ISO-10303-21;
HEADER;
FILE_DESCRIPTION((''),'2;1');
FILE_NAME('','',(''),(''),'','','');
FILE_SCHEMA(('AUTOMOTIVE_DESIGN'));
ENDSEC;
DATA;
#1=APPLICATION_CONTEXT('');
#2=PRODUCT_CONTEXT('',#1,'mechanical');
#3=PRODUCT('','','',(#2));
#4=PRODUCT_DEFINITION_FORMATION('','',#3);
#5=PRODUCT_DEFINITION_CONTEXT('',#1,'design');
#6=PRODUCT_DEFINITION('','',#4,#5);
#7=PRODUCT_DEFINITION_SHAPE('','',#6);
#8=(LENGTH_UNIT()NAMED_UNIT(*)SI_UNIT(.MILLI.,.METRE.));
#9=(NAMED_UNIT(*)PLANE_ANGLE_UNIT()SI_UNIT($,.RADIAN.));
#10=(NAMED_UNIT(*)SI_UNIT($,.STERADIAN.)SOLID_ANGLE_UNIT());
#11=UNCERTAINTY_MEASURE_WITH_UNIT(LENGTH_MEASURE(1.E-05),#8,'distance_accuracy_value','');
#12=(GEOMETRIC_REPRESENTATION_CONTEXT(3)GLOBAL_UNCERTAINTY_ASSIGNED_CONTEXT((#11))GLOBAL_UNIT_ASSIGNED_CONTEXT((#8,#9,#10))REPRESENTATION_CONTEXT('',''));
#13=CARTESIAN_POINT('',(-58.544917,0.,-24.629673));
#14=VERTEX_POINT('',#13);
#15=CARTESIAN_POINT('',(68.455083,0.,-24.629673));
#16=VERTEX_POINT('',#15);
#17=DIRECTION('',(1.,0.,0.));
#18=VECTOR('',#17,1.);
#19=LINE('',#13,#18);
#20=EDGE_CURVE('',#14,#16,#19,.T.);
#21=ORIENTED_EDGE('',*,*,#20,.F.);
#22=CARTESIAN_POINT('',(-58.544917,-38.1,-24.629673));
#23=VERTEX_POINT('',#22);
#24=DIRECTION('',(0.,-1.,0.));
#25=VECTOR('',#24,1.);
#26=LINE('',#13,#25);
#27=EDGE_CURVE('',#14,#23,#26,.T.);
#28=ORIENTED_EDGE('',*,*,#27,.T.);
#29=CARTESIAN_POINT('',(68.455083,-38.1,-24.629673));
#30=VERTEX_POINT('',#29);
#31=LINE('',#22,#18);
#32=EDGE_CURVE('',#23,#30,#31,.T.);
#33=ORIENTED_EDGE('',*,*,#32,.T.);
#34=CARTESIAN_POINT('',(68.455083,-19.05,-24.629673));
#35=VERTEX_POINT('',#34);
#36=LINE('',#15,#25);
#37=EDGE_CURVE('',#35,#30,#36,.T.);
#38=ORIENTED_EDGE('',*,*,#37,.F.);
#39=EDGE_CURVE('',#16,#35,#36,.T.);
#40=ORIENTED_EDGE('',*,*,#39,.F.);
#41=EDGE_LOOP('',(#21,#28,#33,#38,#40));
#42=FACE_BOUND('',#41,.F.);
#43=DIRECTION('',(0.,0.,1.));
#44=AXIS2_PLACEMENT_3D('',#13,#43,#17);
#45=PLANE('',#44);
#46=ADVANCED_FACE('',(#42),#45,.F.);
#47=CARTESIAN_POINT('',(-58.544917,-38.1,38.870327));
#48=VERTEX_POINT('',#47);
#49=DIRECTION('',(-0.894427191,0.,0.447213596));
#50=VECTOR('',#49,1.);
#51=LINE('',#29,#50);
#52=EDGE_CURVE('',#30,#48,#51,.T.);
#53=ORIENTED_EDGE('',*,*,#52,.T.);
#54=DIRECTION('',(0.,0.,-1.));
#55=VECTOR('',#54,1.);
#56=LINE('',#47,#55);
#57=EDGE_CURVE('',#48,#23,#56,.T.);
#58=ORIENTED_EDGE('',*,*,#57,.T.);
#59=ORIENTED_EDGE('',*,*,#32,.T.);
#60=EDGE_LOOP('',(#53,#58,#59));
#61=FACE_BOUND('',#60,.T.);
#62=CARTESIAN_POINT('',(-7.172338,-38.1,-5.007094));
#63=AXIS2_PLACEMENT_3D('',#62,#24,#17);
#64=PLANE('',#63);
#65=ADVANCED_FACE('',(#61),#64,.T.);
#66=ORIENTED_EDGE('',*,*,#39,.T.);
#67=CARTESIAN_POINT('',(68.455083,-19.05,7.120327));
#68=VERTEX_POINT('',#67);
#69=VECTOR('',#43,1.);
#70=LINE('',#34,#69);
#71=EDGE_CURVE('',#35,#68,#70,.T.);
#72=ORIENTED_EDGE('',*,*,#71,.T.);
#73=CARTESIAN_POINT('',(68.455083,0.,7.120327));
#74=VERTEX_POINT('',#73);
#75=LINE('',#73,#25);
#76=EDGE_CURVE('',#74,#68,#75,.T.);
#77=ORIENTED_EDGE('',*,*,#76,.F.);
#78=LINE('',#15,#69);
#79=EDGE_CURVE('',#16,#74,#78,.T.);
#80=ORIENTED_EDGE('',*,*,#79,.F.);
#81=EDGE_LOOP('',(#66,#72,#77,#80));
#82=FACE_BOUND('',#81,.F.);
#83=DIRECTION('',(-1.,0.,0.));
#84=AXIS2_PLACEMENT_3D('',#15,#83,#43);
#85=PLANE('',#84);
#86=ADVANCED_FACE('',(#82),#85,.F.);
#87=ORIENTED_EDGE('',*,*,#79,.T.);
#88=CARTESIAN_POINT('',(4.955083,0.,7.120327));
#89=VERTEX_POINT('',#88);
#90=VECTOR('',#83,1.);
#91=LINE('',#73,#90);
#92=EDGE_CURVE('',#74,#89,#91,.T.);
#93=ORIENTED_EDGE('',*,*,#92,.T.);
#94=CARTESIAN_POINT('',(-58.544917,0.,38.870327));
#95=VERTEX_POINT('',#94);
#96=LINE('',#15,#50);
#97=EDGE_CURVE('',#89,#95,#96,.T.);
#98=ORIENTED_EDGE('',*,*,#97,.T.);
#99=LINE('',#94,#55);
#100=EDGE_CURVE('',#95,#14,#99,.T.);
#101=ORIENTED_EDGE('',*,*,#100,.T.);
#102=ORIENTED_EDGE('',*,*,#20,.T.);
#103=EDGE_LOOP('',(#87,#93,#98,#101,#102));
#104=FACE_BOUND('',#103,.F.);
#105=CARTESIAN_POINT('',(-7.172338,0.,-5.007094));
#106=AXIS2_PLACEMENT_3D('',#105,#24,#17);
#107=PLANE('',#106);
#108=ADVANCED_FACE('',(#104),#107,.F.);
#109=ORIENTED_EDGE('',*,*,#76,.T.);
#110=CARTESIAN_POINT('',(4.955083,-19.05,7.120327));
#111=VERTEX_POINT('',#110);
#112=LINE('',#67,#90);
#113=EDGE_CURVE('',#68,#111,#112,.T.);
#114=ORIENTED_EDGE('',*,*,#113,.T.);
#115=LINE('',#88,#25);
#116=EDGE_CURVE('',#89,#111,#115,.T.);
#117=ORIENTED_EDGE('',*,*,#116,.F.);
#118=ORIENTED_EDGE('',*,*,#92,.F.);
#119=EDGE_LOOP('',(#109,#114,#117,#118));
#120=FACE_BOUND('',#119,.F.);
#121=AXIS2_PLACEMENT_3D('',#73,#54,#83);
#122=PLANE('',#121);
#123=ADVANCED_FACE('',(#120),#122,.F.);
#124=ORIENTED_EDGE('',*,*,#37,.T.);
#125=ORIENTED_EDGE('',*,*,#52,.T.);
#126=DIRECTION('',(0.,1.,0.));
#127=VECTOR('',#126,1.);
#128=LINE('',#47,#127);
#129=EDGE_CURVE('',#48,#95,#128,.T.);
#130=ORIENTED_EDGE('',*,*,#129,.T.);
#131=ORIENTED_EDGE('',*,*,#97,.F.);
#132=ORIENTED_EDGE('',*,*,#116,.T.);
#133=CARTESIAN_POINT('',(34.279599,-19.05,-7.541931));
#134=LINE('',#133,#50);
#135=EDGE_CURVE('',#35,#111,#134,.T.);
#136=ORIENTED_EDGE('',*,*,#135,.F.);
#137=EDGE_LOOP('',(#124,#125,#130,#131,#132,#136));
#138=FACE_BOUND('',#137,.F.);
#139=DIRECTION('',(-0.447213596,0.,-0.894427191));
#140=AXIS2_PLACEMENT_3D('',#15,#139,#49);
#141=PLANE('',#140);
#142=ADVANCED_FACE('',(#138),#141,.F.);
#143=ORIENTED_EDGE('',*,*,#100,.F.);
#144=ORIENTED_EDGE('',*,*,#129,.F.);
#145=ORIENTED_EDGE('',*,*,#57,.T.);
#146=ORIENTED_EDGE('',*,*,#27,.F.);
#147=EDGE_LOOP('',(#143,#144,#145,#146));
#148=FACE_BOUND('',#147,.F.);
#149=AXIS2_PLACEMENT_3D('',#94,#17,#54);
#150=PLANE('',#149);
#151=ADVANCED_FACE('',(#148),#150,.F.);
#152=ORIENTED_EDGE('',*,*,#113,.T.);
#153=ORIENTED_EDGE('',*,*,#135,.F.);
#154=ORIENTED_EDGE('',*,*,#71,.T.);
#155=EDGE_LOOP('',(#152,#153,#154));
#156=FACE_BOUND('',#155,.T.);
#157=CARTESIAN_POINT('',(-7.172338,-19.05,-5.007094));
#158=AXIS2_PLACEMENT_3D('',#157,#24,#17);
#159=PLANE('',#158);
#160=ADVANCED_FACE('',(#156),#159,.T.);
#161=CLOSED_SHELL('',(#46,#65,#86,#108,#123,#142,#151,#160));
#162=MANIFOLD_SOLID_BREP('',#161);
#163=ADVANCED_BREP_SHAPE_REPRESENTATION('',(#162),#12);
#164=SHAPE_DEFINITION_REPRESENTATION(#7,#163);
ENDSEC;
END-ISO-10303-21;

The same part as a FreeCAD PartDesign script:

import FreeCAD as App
import Part
import Sketcher
Q = App.Units.Quantity

doc = App.newDocument("Part")
body = doc.addObject("PartDesign::Body", "Body")

sketch1 = body.newObject("Sketcher::SketchObject", "Sketch")
sketch1.AttachmentSupport = (doc.getObject("XZ_Plane"), [""])
sketch1.MapMode = "FlatFace"
sketch1.addGeometry([
    Part.LineSegment(App.Vector(-59, 39, 0), App.Vector(-59, -25, 0)),
    Part.LineSegment(App.Vector(-59, -25, 0), App.Vector(68, -25, 0)),
    Part.LineSegment(App.Vector(68, -25, 0), App.Vector(-59, 39, 0)),
], False)
sketch1.addConstraint([
    Sketcher.Constraint("Coincident", 0, 2, 1, 1),
    Sketcher.Constraint("Coincident", 1, 2, 2, 1),
    Sketcher.Constraint("Coincident", 2, 2, 0, 1),
    Sketcher.Constraint("Vertical", 0),
    Sketcher.Constraint("Horizontal", 1),
    Sketcher.Constraint("DistanceX", 1, 1, 1, 2, Q("5 in")),
    Sketcher.Constraint("DistanceY", 0, 2, 0, 1, Q("2.5 in")),
    Sketcher.Constraint("DistanceX", 0, 2, -1, 1, Q("58.544917 mm")),
    Sketcher.Constraint("DistanceY", 0, 2, -1, 1, Q("24.629673 mm")),
])
pad1 = body.newObject("PartDesign::Pad", "Pad")
pad1.Profile = sketch1
pad1.Length = Q("1.5 in")

sketch2 = body.newObject("Sketcher::SketchObject", "Sketch001")
sketch2.AttachmentSupport = (doc.getObject("XZ_Plane"), [""])
sketch2.MapMode = "FlatFace"
sketch2.addGeometry([
    Part.LineSegment(App.Vector(-59, 39, 0), App.Vector(-59, -25, 0)),
    Part.LineSegment(App.Vector(-59, -25, 0), App.Vector(68, -25, 0)),
    Part.LineSegment(App.Vector(68, -25, 0), App.Vector(68, 7, 0)),
    Part.LineSegment(App.Vector(68, 7, 0), App.Vector(5, 7, 0)),
    Part.LineSegment(App.Vector(5, 7, 0), App.Vector(-59, 39, 0)),
], False)
sketch2.addConstraint([
    Sketcher.Constraint("Coincident", 0, 2, 1, 1),
    Sketcher.Constraint("Coincident", 1, 2, 2, 1),
    Sketcher.Constraint("Coincident", 2, 2, 3, 1),
    Sketcher.Constraint("Coincident", 3, 2, 4, 1),
    Sketcher.Constraint("Coincident", 4, 2, 0, 1),
    Sketcher.Constraint("Vertical", 0),
    Sketcher.Constraint("Horizontal", 1),
    Sketcher.Constraint("Vertical", 2),
    Sketcher.Constraint("Horizontal", 3),
    Sketcher.Constraint("Equal", 3, 0),
    Sketcher.Constraint("DistanceX", 1, 1, 1, 2, Q("5 in")),
    Sketcher.Constraint("DistanceX", 3, 2, 3, 1, Q("2.5 in")),
    Sketcher.Constraint("DistanceY", 2, 1, 2, 2, Q("1.25 in")),
    Sketcher.Constraint("DistanceX", 0, 2, -1, 1, Q("58.544917 mm")),
    Sketcher.Constraint("DistanceY", 0, 2, -1, 1, Q("24.629673 mm")),
])
pad2 = body.newObject("PartDesign::Pad", "Pad001")
pad2.Profile = sketch2
pad2.Length = Q("0.75 in")

doc.recompute()
